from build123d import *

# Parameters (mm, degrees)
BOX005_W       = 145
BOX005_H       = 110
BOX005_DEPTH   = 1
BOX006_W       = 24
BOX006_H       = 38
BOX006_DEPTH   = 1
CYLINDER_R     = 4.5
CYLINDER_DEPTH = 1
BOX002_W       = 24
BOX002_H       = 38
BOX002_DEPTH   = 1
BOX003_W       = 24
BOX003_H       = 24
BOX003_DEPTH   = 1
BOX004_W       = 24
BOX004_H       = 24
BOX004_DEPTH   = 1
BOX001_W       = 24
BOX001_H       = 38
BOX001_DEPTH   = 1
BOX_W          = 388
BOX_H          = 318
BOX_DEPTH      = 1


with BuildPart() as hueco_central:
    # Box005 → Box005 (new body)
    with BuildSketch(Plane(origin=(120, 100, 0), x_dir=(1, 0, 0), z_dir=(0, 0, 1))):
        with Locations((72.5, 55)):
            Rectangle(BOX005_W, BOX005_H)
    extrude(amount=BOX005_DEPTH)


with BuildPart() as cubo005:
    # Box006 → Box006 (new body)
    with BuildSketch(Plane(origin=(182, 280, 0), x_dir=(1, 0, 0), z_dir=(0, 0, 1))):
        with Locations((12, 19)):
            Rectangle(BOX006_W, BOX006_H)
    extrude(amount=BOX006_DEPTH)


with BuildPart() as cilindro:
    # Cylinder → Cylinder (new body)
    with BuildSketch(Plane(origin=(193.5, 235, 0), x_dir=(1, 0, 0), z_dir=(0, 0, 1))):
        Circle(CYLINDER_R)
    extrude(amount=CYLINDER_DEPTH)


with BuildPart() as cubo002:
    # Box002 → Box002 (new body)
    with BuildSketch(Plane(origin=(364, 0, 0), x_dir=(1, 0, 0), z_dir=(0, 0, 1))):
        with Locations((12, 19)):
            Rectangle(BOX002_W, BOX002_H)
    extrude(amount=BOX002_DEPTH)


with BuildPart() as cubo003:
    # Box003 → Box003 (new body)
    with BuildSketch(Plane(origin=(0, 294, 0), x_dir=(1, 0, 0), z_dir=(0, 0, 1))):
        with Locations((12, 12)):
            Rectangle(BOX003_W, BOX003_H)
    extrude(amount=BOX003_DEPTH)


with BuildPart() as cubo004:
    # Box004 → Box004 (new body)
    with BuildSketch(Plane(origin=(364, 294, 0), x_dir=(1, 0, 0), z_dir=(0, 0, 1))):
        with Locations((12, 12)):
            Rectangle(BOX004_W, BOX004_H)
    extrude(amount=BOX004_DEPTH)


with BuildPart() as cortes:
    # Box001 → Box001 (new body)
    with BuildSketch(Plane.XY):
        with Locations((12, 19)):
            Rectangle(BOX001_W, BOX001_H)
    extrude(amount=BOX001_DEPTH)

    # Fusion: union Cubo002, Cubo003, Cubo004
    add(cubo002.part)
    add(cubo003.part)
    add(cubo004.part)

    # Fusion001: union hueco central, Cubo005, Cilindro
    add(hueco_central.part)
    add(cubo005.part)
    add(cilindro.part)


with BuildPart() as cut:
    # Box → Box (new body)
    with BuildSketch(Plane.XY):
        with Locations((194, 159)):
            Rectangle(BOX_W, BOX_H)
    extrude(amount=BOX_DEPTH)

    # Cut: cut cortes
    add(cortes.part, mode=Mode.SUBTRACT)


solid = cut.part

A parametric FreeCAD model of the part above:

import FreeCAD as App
import Part
import Sketcher


def add_polygon(sketch, points):
    """Adds a closed chain of lines whose ends are joined by coincident constraints."""
    first, n = sketch.GeometryCount, len(points)
    for a, b in zip(points, points[1:] + points[:1]):
        sketch.addGeometry(Part.LineSegment(App.Vector(*a, 0), App.Vector(*b, 0)), False)
    for i in range(n):
        sketch.addConstraint(Sketcher.Constraint("Coincident", first + i, 2, first + (i + 1) % n, 1))

doc = App.newDocument("Part")
body = doc.addObject("PartDesign::Body", "Body")

# Sketch on XY plane
sketch1 = body.newObject("Sketcher::SketchObject", "Sketch")
sketch1.AttachmentSupport = (doc.getObject("XY_Plane"), [""])
sketch1.MapMode = "FlatFace"
add_polygon(sketch1, [(120, 210), (120, 100), (265, 100), (265, 210)])  # lines 0-3
sketch1.addConstraint([
    Sketcher.Constraint("Vertical", 0),
    Sketcher.Constraint("Horizontal", 1),
    Sketcher.Constraint("Vertical", 2),
    Sketcher.Constraint("Horizontal", 3),
    Sketcher.Constraint("DistanceX", 1, 1, 1, 2, 145.0),
    Sketcher.Constraint("DistanceY", 0, 2, 0, 1, 110.0),
    Sketcher.Constraint("DistanceX", -1, 1, 0, 2, 120.0),
    Sketcher.Constraint("DistanceY", -1, 1, 0, 2, 100.0),
])
pad1 = body.newObject("PartDesign::Pad", "Pad")
pad1.Profile = sketch1
pad1.Length = 1
body2 = doc.addObject("PartDesign::Body", "Body001")

# Sketch on XY plane
sketch2 = body2.newObject("Sketcher::SketchObject", "Sketch001")
sketch2.AttachmentSupport = (doc.getObject("XY_Plane001"), [""])
sketch2.MapMode = "FlatFace"
add_polygon(sketch2, [(182, 318), (182, 280), (206, 280), (206, 318)])  # lines 0-3
sketch2.addConstraint([
    Sketcher.Constraint("Vertical", 0),
    Sketcher.Constraint("Horizontal", 1),
    Sketcher.Constraint("Vertical", 2),
    Sketcher.Constraint("Horizontal", 3),
    Sketcher.Constraint("DistanceX", 1, 1, 1, 2, 24.0),
    Sketcher.Constraint("DistanceY", 0, 2, 0, 1, 38.0),
    Sketcher.Constraint("DistanceX", -1, 1, 0, 2, 182.0),
    Sketcher.Constraint("DistanceY", -1, 1, 0, 2, 280.0),
])
pad2 = body2.newObject("PartDesign::Pad", "Pad001")
pad2.Profile = sketch2
pad2.Length = 1
body3 = doc.addObject("PartDesign::Body", "Body002")

# Sketch on XY plane
sketch3 = body3.newObject("Sketcher::SketchObject", "Sketch002")
sketch3.AttachmentSupport = (doc.getObject("XY_Plane002"), [""])
sketch3.MapMode = "FlatFace"
sketch3.addGeometry(Part.Circle(App.Vector(193.5, 235, 0), App.Vector(0, 0, 1), 4.5), False)
sketch3.addConstraint([
    Sketcher.Constraint("Diameter", 0, 9.0),
    Sketcher.Constraint("DistanceY", -1, 1, 0, 3, 235.0),
    Sketcher.Constraint("DistanceX", -1, 1, 0, 3, 193.5),
])
pad3 = body3.newObject("PartDesign::Pad", "Pad002")
pad3.Profile = sketch3
pad3.Length = 1
body4 = doc.addObject("PartDesign::Body", "Body003")

# Sketch on XY plane
sketch4 = body4.newObject("Sketcher::SketchObject", "Sketch003")
sketch4.AttachmentSupport = (doc.getObject("XY_Plane003"), [""])
sketch4.MapMode = "FlatFace"
add_polygon(sketch4, [(364, 38), (364, 0), (388, 0), (388, 38)])  # lines 0-3
sketch4.addConstraint([
    Sketcher.Constraint("Vertical", 0),
    Sketcher.Constraint("Horizontal", 1),
    Sketcher.Constraint("Vertical", 2),
    Sketcher.Constraint("Horizontal", 3),
    Sketcher.Constraint("PointOnObject", 0, 2, -1),
    Sketcher.Constraint("DistanceX", 1, 1, 1, 2, 24.0),
    Sketcher.Constraint("DistanceY", 0, 2, 0, 1, 38.0),
    Sketcher.Constraint("DistanceX", -1, 1, 0, 2, 364.0),
])
pad4 = body4.newObject("PartDesign::Pad", "Pad003")
pad4.Profile = sketch4
pad4.Length = 1
body5 = doc.addObject("PartDesign::Body", "Body004")

# Sketch on XY plane
sketch5 = body5.newObject("Sketcher::SketchObject", "Sketch004")
sketch5.AttachmentSupport = (doc.getObject("XY_Plane004"), [""])
sketch5.MapMode = "FlatFace"
add_polygon(sketch5, [(0, 318), (0, 294), (24, 294), (24, 318)])  # lines 0-3
sketch5.addConstraint([
    Sketcher.Constraint("Vertical", 0),
    Sketcher.Constraint("Horizontal", 1),
    Sketcher.Constraint("Vertical", 2),
    Sketcher.Constraint("Horizontal", 3),
    Sketcher.Constraint("PointOnObject", 0, 2, -2),
    Sketcher.Constraint("Equal", 3, 0),
    Sketcher.Constraint("DistanceX", 1, 1, 1, 2, 24.0),
    Sketcher.Constraint("DistanceY", -1, 1, 0, 2, 294.0),
])
pad5 = body5.newObject("PartDesign::Pad", "Pad004")
pad5.Profile = sketch5
pad5.Length = 1
body6 = doc.addObject("PartDesign::Body", "Body005")

# Sketch on XY plane
sketch6 = body6.newObject("Sketcher::SketchObject", "Sketch005")
sketch6.AttachmentSupport = (doc.getObject("XY_Plane005"), [""])
sketch6.MapMode = "FlatFace"
add_polygon(sketch6, [(364, 318), (364, 294), (388, 294), (388, 318)])  # lines 0-3
sketch6.addConstraint([
    Sketcher.Constraint("Vertical", 0),
    Sketcher.Constraint("Horizontal", 1),
    Sketcher.Constraint("Vertical", 2),
    Sketcher.Constraint("Horizontal", 3),
    Sketcher.Constraint("Equal", 3, 0),
    Sketcher.Constraint("DistanceX", 1, 1, 1, 2, 24.0),
    Sketcher.Constraint("DistanceX", -1, 1, 0, 2, 364.0),
    Sketcher.Constraint("DistanceY", -1, 1, 0, 2, 294.0),
])
pad6 = body6.newObject("PartDesign::Pad", "Pad005")
pad6.Profile = sketch6
pad6.Length = 1
body7 = doc.addObject("PartDesign::Body", "Body006")
body7.AllowCompound = True

# Sketch on XY plane
sketch7 = body7.newObject("Sketcher::SketchObject", "Sketch006")
sketch7.AttachmentSupport = (doc.getObject("XY_Plane006"), [""])
sketch7.MapMode = "FlatFace"
add_polygon(sketch7, [(0, 38), (0, 0), (24, 0), (24, 38)])  # lines 0-3
sketch7.addConstraint([
    Sketcher.Constraint("Vertical", 0),
    Sketcher.Constraint("Horizontal", 1),
    Sketcher.Constraint("Vertical", 2),
    Sketcher.Constraint("Horizontal", 3),
    Sketcher.Constraint("Coincident", 0, 2, -1, 1),
    Sketcher.Constraint("DistanceX", 1, 1, 1, 2, 24.0),
    Sketcher.Constraint("DistanceY", 0, 2, 0, 1, 38.0),
])
pad7 = body7.newObject("PartDesign::Pad", "Pad006")
pad7.Profile = sketch7
pad7.Length = 1
doc.recompute()

boolean = body7.newObject("PartDesign::Boolean", "Boolean")
boolean.Type = "Fuse"
boolean.addObjects([body4])
doc.recompute()

boolean2 = body7.newObject("PartDesign::Boolean", "Boolean001")
boolean2.Type = "Fuse"
boolean2.addObjects([body5])
doc.recompute()

boolean3 = body7.newObject("PartDesign::Boolean", "Boolean002")
boolean3.Type = "Fuse"
boolean3.addObjects([body6])
doc.recompute()

boolean4 = body7.newObject("PartDesign::Boolean", "Boolean003")
boolean4.Type = "Fuse"
boolean4.addObjects([body])
doc.recompute()

boolean5 = body7.newObject("PartDesign::Boolean", "Boolean004")
boolean5.Type = "Fuse"
boolean5.addObjects([body2])
doc.recompute()

boolean6 = body7.newObject("PartDesign::Boolean", "Boolean005")
boolean6.Type = "Fuse"
boolean6.addObjects([body3])
body8 = doc.addObject("PartDesign::Body", "Body007")

# Sketch on XY plane
sketch8 = body8.newObject("Sketcher::SketchObject", "Sketch007")
sketch8.AttachmentSupport = (doc.getObject("XY_Plane007"), [""])
sketch8.MapMode = "FlatFace"
add_polygon(sketch8, [(0, 318), (0, 0), (388, 0), (388, 318)])  # lines 0-3
sketch8.addConstraint([
    Sketcher.Constraint("Vertical", 0),
    Sketcher.Constraint("Horizontal", 1),
    Sketcher.Constraint("Vertical", 2),
    Sketcher.Constraint("Horizontal", 3),
    Sketcher.Constraint("Coincident", 0, 2, -1, 1),
    Sketcher.Constraint("DistanceX", 1, 1, 1, 2, 388.0),
    Sketcher.Constraint("DistanceY", 0, 2, 0, 1, 318.0),
])
pad8 = body8.newObject("PartDesign::Pad", "Pad007")
pad8.Profile = sketch8
pad8.Length = 1
doc.recompute()

boolean7 = body8.newObject("PartDesign::Boolean", "Boolean006")
boolean7.Type = "Cut"
boolean7.addObjects([body7])

doc.recompute()
